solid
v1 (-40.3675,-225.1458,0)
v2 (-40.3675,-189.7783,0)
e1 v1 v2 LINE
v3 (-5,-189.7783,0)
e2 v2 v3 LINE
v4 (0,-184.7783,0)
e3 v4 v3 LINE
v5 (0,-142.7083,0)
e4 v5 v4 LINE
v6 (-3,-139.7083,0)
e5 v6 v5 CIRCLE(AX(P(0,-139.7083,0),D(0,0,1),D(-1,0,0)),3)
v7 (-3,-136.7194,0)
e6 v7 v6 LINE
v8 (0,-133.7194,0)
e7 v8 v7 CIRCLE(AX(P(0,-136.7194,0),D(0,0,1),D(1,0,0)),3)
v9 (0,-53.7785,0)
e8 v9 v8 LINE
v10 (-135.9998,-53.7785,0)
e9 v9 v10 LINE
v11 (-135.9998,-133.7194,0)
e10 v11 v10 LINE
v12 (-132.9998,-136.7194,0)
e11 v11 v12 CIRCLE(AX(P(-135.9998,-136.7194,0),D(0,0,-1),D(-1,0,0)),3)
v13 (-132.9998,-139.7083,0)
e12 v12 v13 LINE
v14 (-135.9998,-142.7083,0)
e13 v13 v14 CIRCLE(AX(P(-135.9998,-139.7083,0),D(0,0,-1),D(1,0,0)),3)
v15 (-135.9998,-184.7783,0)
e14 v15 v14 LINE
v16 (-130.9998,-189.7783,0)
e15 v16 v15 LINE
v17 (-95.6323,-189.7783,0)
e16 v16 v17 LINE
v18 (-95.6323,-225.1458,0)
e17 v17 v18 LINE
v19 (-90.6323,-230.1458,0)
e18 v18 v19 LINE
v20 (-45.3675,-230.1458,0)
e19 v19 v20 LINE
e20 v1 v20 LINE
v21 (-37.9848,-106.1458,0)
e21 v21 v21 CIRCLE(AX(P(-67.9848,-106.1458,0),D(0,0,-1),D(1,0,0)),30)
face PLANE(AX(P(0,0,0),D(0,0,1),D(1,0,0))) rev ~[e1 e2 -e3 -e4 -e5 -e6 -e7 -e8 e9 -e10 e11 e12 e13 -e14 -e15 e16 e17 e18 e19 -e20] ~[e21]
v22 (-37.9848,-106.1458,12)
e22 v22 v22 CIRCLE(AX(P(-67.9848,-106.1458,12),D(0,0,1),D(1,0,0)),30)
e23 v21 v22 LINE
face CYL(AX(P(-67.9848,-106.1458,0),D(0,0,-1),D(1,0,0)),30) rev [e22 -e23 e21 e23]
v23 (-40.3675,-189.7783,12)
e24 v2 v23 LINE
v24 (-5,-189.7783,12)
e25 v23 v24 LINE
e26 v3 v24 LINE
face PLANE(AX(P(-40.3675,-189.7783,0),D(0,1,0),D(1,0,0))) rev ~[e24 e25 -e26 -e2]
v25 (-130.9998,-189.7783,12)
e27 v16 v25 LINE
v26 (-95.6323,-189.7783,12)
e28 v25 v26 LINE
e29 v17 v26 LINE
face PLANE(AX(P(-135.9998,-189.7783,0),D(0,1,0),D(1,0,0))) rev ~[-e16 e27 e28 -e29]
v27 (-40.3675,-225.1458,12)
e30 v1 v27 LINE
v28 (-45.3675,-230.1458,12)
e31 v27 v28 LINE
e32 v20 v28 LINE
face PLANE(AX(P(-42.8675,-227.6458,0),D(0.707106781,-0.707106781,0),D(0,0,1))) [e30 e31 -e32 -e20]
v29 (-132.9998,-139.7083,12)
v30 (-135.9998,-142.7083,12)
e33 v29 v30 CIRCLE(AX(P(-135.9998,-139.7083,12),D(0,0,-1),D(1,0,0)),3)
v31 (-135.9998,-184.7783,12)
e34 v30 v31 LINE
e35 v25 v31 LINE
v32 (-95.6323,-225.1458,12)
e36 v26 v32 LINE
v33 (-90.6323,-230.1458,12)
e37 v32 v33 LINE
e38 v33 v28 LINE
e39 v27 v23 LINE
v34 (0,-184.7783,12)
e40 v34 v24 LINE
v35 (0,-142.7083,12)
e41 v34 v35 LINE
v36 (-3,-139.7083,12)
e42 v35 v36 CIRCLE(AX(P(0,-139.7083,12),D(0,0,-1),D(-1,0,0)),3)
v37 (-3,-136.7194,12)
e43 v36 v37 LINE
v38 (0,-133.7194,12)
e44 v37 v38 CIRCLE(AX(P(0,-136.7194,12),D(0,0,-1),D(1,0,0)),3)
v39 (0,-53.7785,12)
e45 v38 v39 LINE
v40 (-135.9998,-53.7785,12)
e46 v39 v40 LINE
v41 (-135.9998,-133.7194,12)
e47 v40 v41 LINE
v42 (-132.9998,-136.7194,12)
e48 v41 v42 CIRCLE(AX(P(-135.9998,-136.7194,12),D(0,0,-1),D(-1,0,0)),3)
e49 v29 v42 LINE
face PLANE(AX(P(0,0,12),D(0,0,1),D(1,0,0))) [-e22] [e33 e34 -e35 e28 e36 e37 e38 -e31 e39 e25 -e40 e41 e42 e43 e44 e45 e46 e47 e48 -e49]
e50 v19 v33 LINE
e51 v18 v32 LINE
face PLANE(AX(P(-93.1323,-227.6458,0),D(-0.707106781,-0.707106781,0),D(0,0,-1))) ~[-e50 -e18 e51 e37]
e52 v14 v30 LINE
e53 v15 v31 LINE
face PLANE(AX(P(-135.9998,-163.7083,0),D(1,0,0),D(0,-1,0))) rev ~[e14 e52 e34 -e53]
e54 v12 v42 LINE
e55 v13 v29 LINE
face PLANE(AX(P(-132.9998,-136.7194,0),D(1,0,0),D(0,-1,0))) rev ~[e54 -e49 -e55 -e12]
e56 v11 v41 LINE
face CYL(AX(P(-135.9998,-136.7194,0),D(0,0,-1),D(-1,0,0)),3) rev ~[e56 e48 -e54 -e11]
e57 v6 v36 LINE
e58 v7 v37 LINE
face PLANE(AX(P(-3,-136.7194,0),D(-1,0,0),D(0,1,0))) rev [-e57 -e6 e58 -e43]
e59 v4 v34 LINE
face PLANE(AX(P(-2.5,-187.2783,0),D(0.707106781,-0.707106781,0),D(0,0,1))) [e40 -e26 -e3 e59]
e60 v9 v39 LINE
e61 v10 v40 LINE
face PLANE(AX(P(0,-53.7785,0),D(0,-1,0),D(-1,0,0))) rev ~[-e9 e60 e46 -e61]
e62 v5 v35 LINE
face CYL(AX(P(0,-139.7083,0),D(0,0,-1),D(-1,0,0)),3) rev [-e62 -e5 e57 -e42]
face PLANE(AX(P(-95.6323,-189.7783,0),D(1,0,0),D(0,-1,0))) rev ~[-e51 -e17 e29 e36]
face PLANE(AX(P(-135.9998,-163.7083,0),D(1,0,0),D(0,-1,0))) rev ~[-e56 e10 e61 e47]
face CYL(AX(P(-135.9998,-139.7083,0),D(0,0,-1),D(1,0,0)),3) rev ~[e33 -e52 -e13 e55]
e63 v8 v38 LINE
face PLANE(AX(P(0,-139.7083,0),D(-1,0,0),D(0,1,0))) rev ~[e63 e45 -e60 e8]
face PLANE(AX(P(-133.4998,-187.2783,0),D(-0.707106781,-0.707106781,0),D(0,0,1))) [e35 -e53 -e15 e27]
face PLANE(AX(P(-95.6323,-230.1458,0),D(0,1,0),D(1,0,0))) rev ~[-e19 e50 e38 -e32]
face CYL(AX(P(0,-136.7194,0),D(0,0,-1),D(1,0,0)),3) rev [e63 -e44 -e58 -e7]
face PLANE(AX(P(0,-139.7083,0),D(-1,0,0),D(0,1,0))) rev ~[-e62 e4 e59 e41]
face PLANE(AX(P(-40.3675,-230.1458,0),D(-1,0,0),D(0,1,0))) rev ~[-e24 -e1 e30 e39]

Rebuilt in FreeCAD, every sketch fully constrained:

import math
import FreeCAD as App
import Part
import Sketcher
from FreeCAD import Vector


def edges_at(feature, points):
    """Names of the edges that pass closest to the given points."""
    edges = feature.Shape.Edges
    near = lambda p: min(range(len(edges)), key=lambda i: edges[i].distToShape(Part.Vertex(*p))[0])
    return sorted({f"Edge{near(p) + 1}" for p in points})

doc = App.newDocument("Part")
body = doc.addObject("PartDesign::Body", "Body")

# Sketch on XY plane
sketch1 = doc.addObject("Sketcher::SketchObject", "Sketch")
body.addObject(sketch1)
sketch1.AttachmentSupport = (doc.XY_Plane, [""])
sketch1.MapMode = "FlatFace"
sketch1.addGeometry(Part.LineSegment(Vector(-136, -190, 0), Vector(-96, -190, 0)), False)
sketch1.addGeometry(Part.LineSegment(Vector(-96, -190, 0), Vector(-96, -230, 0)), False)
sketch1.addGeometry(Part.LineSegment(Vector(-96, -230, 0), Vector(-40, -230, 0)), False)
sketch1.addGeometry(Part.LineSegment(Vector(-40, -230, 0), Vector(-40, -190, 0)), False)
sketch1.addGeometry(Part.LineSegment(Vector(-40, -190, 0), Vector(0, -190, 0)), False)
sketch1.addGeometry(Part.LineSegment(Vector(0, -190, 0), Vector(0, -54, 0)), False)
sketch1.addGeometry(Part.LineSegment(Vector(0, -54, 0), Vector(-136, -54, 0)), False)
sketch1.addGeometry(Part.LineSegment(Vector(-136, -54, 0), Vector(-136, -190, 0)), False)
sketch1.addGeometry(Part.Circle(Vector(-68, -106, 0), Vector(0, 0, 1), 30), False)
sketch1.addConstraint(Sketcher.Constraint("Coincident", 0, 2, 1, 1))
sketch1.addConstraint(Sketcher.Constraint("Coincident", 1, 2, 2, 1))
sketch1.addConstraint(Sketcher.Constraint("Coincident", 2, 2, 3, 1))
sketch1.addConstraint(Sketcher.Constraint("Coincident", 3, 2, 4, 1))
sketch1.addConstraint(Sketcher.Constraint("Coincident", 4, 2, 5, 1))
sketch1.addConstraint(Sketcher.Constraint("Coincident", 5, 2, 6, 1))
sketch1.addConstraint(Sketcher.Constraint("Coincident", 6, 2, 7, 1))
sketch1.addConstraint(Sketcher.Constraint("Coincident", 7, 2, 0, 1))
sketch1.addConstraint(Sketcher.Constraint("Horizontal", 0))
sketch1.addConstraint(Sketcher.Constraint("Vertical", 1))
sketch1.addConstraint(Sketcher.Constraint("Horizontal", 2))
sketch1.addConstraint(Sketcher.Constraint("Vertical", 3))
sketch1.addConstraint(Sketcher.Constraint("Horizontal", 4))
sketch1.addConstraint(Sketcher.Constraint("Vertical", 5))
sketch1.addConstraint(Sketcher.Constraint("Horizontal", 6))
sketch1.addConstraint(Sketcher.Constraint("Vertical", 7))
sketch1.addConstraint(Sketcher.Constraint("PointOnObject", 4, 2, -2))
sketch1.addConstraint(Sketcher.Constraint("Horizontal", 0, 2, 3, 2))
sketch1.addConstraint(Sketcher.Constraint("Equal", 0, 4))
sketch1.addConstraint(Sketcher.Constraint("Equal", 4, 1))
sketch1.addConstraint(Sketcher.Constraint("Equal", 6, 5))
sketch1.addConstraint(Sketcher.Constraint("Diameter", 8, 60.0))
sketch1.addConstraint(Sketcher.Constraint("DistanceY", 1, 2, 8, 3, 124.0))
sketch1.addConstraint(Sketcher.Constraint("DistanceX", 0, 1, 0, 2, 40.3675))
sketch1.addConstraint(Sketcher.Constraint("DistanceX", 2, 1, 2, 2, 55.2648))
sketch1.addConstraint(Sketcher.Constraint("DistanceX", 6, 2, 8, 3, 68.015))
sketch1.addConstraint(Sketcher.Constraint("DistanceY", 8, 3, -1, 1, 106.1458))
pad1 = doc.addObject("PartDesign::Pad", "Pad")
body.addObject(pad1)
pad1.Profile = sketch1
pad1.Length = 12
doc.recompute()

chamfer = doc.addObject("PartDesign::Chamfer", "Chamfer")
body.addObject(chamfer)
chamfer.Base = (pad1, edges_at(pad1, [
    (-136, -189.778, 6),
    (-95.632, -230.146, 6),
    (-40.367, -230.146, 6),
    (0, -189.778, 6),
]))
chamfer.Size = 5

# Sketch on XY plane
sketch2 = doc.addObject("Sketcher::SketchObject", "Sketch001")
body.addObject(sketch2)
sketch2.AttachmentSupport = (doc.XY_Plane, [""])
sketch2.MapMode = "FlatFace"
sketch2.addGeometry(Part.ArcOfCircle(Part.Circle(Vector(-136, -139.7, 0), Vector(0, 0, 1), 3), math.radians(-90), math.radians(0)), False)
sketch2.addGeometry(Part.LineSegment(Vector(-136, -142.7, 0), Vector(-136, -133.7, 0)), False)
sketch2.addGeometry(Part.ArcOfCircle(Part.Circle(Vector(-136, -136.7, 0), Vector(0, 0, 1), 3), math.radians(0), math.radians(90)), False)
sketch2.addGeometry(Part.LineSegment(Vector(-133, -136.7, 0), Vector(-133, -139.7, 0)), False)
sketch2.addConstraint(Sketcher.Constraint("Coincident", 0, 1, 1, 1))
sketch2.addConstraint(Sketcher.Constraint("Coincident", 1, 2, 2, 2))
sketch2.addConstraint(Sketcher.Constraint("Tangent", 2, 1, 3, 1))
sketch2.addConstraint(Sketcher.Constraint("Tangent", 3, 2, 0, 2))
sketch2.addConstraint(Sketcher.Constraint("Vertical", 1))
sketch2.addConstraint(Sketcher.Constraint("Vertical", 3))
sketch2.addConstraint(Sketcher.Constraint("Equal", 0, 2))
sketch2.addConstraint(Sketcher.Constraint("Vertical", 2, 3, 0, 1))
sketch2.addConstraint(Sketcher.Constraint("Radius", 0, 3.0))
sketch2.addConstraint(Sketcher.Constraint("DistanceY", 1, 1, 1, 2, 8.989))
sketch2.addConstraint(Sketcher.Constraint("DistanceX", 0, 3, -1, 1, 135.9998))
sketch2.addConstraint(Sketcher.Constraint("DistanceY", 0, 3, -1, 1, 139.7083))
pocket1 = doc.addObject("PartDesign::Pocket", "Pocket")
body.addObject(pocket1)
pocket1.Profile = sketch2
pocket1.Type = "ThroughAll"
pocket1.Reversed = True
doc.recompute()

datumplane = doc.addObject("PartDesign::Plane", "DatumPlane")
body.addObject(datumplane)
datumplane.AttachmentSupport = (doc.YZ_Plane, [""])
datumplane.MapMode = "FlatFace"
datumplane.AttachmentOffset = App.Placement(Vector(0, 0, -67.9999), App.Rotation())
mirrored = doc.addObject("PartDesign::Mirrored", "Mirrored")
body.addObject(mirrored)
mirrored.Originals = [pocket1]
mirrored.MirrorPlane = (datumplane, [""])
body.Tip = mirrored

doc.recompute()
